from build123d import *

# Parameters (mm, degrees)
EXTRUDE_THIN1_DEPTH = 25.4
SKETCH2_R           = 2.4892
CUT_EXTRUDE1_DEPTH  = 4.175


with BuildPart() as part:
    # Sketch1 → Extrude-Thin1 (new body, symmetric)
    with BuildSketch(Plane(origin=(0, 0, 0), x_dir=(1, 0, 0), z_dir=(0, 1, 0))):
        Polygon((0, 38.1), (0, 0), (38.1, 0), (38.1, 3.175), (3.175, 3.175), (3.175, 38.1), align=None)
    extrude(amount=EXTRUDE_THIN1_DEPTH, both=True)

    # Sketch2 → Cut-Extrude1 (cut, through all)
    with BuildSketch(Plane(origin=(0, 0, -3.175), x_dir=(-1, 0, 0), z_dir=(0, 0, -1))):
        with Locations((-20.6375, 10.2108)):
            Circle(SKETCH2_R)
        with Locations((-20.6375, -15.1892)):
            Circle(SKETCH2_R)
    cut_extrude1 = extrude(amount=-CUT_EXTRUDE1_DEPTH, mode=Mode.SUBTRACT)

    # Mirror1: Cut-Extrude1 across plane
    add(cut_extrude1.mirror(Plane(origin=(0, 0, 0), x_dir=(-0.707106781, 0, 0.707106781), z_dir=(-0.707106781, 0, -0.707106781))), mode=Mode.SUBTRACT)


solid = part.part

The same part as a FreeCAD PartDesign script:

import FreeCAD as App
import Part
import Sketcher

V = App.Vector
Q = App.Units.Quantity

doc = App.newDocument("Part")
body = doc.addObject("PartDesign::Body", "Body")

sketch1 = body.newObject("Sketcher::SketchObject", "Sketch")
sketch1.AttachmentSupport = (doc.getObject("XZ_Plane"), [""])
sketch1.MapMode = "FlatFace"
sketch1.addGeometry([
    Part.LineSegment(V(0, -38.1, 0), V(0, 0, 0)),
    Part.LineSegment(V(0, 0, 0), V(38.1, 0, 0)),
    Part.LineSegment(V(38.1, 0, 0), V(38.1, -3.175, 0)),
    Part.LineSegment(V(38.1, -3.175, 0), V(3.175, -3.175, 0)),
    Part.LineSegment(V(3.175, -3.175, 0), V(3.175, -38.1, 0)),
    Part.LineSegment(V(3.175, -38.1, 0), V(0, -38.1, 0)),
], False)
sketch1.addConstraint([
    Sketcher.Constraint("Coincident", 0, 2, 1, 1),
    Sketcher.Constraint("Coincident", 1, 2, 2, 1),
    Sketcher.Constraint("Coincident", 2, 2, 3, 1),
    Sketcher.Constraint("Coincident", 3, 2, 4, 1),
    Sketcher.Constraint("Coincident", 4, 2, 5, 1),
    Sketcher.Constraint("Coincident", 5, 2, 0, 1),
    Sketcher.Constraint("Vertical", 0),
    Sketcher.Constraint("Horizontal", 1),
    Sketcher.Constraint("Vertical", 2),
    Sketcher.Constraint("Horizontal", 3),
    Sketcher.Constraint("Vertical", 4),
    Sketcher.Constraint("Horizontal", 5),
    Sketcher.Constraint("Coincident", 0, 2, -1, 1),
    Sketcher.Constraint("Equal", 1, 0),
    Sketcher.Constraint("Equal", 5, 2),
    Sketcher.Constraint("DistanceX", 1, 1, 1, 2, Q("1.5 in")),
    Sketcher.Constraint("DistanceX", 3, 2, 3, 1, Q("1.375 in")),
])
pad1 = body.newObject("PartDesign::Pad", "Pad")
pad1.Profile = sketch1
pad1.Length = Q("2 in")
pad1.Midplane = True

sketch2 = body.newObject("Sketcher::SketchObject", "Sketch001")
sketch2.AttachmentSupport = (doc.getObject("XY_Plane"), [""])
sketch2.MapMode = "FlatFace"
sketch2.AttachmentOffset = App.Placement(V(0, 0, -0.125 * 25.4), App.Rotation())
sketch2.addGeometry([
    Part.Circle(V(20.6375, 10.2108, 0), V(0, 0, 1), 2.4892),
    Part.Circle(V(20.6375, -15.1892, 0), V(0, 0, 1), 2.4892),
], False)
sketch2.addConstraint([
    Sketcher.Constraint("Equal", 0, 1),
    Sketcher.Constraint("Vertical", 0, 3, 1, 3),
    Sketcher.Constraint("Diameter", 0, Q("0.196 in")),
    Sketcher.Constraint("DistanceY", 1, 3, 0, 3, Q("1 in")),
    Sketcher.Constraint("DistanceX", -1, 1, 0, 3, Q("0.8125 in")),
    Sketcher.Constraint("DistanceY", -1, 1, 0, 3, Q("0.402 in")),
])
pocket1 = body.newObject("PartDesign::Pocket", "Pocket")
pocket1.Profile = sketch2
pocket1.Type = "ThroughAll"
pocket1.Reversed = True
doc.recompute()

datumplane = body.newObject("PartDesign::Plane", "DatumPlane")
datumplane.Placement = App.Placement(V(0, 0, 0), App.Rotation(V(0.707106781, 0, -0.707106781), V(0, -1, 0), V(-0.707106781, 0, -0.707106781), "ZXY"))
mirrored = body.newObject("PartDesign::Mirrored", "Mirrored")
mirrored.Originals = [pocket1]
mirrored.MirrorPlane = (datumplane, [""])
body.Tip = mirrored

doc.recompute()
